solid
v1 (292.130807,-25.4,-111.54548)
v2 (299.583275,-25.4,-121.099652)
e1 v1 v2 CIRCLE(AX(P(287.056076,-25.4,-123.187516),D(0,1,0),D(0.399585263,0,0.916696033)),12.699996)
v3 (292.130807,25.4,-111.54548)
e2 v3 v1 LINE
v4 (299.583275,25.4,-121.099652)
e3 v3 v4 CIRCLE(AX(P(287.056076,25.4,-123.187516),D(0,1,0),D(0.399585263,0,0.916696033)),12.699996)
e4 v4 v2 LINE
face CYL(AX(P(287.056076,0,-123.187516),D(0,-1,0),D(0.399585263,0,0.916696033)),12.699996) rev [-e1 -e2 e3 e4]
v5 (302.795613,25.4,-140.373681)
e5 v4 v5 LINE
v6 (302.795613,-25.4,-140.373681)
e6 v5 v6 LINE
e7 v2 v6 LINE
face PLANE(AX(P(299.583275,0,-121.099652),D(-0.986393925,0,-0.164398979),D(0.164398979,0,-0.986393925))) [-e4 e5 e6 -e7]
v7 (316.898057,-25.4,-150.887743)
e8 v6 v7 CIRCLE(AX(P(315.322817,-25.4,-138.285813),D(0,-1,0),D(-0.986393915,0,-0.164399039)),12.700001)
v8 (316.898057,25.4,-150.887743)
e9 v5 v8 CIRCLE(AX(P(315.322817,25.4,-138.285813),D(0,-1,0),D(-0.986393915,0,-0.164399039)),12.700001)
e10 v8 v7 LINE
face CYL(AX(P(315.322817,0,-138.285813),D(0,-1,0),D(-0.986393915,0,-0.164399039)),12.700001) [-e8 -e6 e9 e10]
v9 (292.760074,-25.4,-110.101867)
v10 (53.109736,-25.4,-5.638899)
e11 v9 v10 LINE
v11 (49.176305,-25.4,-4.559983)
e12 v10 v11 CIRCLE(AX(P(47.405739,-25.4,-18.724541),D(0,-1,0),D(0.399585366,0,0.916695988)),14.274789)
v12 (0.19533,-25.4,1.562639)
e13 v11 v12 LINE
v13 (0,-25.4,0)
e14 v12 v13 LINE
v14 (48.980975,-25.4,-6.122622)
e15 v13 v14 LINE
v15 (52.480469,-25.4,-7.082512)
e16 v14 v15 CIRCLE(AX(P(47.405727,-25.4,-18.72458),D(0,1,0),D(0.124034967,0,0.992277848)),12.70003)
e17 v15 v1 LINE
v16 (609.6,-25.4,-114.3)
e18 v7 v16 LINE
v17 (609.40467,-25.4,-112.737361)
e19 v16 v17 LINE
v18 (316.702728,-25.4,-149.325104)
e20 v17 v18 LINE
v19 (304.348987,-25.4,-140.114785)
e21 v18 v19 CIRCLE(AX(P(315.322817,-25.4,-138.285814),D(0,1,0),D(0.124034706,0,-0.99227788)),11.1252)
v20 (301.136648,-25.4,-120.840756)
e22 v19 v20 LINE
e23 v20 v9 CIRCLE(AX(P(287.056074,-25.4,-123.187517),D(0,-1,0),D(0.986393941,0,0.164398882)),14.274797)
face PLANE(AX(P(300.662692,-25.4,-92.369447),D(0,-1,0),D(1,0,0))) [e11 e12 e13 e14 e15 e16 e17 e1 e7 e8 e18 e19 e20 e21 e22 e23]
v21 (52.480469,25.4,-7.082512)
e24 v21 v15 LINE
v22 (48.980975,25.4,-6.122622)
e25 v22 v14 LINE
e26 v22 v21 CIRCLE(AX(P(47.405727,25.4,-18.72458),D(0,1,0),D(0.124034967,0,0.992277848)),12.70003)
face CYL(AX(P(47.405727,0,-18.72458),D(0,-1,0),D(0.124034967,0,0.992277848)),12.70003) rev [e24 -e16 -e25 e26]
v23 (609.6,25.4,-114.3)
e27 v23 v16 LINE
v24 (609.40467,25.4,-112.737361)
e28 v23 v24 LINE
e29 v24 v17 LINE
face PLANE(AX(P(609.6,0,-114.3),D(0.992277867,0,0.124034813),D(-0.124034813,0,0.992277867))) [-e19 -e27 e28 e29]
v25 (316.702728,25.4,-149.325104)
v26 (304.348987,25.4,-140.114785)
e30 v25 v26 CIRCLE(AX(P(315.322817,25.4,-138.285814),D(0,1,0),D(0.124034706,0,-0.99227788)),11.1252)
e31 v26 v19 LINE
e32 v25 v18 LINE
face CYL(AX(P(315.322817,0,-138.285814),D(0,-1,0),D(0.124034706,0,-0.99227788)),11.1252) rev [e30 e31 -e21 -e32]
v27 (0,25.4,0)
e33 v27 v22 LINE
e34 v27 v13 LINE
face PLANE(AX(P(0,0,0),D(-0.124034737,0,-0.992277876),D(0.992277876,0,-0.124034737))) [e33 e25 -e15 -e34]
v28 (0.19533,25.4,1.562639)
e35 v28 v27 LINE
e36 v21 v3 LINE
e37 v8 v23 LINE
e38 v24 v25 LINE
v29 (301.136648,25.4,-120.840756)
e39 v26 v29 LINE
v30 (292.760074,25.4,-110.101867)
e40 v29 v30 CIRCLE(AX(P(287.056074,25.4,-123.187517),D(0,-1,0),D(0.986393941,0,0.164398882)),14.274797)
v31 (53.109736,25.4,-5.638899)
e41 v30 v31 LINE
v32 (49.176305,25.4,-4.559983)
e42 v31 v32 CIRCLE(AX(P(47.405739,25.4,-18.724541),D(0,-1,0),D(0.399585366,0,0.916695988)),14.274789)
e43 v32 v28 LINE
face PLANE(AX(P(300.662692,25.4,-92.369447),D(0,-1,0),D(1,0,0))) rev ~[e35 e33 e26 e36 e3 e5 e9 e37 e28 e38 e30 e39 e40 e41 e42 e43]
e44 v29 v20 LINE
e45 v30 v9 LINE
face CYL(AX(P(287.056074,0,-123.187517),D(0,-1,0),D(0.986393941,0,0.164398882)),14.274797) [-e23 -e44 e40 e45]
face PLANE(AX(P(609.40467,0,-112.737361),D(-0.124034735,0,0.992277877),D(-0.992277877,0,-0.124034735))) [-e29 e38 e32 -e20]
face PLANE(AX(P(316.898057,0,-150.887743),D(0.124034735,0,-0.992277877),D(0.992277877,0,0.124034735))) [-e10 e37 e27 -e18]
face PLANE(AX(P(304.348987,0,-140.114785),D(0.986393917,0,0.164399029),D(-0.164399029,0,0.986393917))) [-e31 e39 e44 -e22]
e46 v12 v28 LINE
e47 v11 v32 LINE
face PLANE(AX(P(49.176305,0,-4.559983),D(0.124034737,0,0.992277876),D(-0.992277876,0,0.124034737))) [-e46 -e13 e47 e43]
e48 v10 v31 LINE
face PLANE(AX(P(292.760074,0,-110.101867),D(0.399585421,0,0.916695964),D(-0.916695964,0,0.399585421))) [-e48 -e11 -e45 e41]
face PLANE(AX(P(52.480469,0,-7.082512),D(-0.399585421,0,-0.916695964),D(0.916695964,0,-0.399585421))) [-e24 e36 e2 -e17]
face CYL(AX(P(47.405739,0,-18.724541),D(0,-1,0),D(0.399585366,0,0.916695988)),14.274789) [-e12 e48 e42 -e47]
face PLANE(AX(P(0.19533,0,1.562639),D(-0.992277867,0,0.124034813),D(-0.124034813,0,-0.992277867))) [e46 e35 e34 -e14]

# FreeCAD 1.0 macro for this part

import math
import FreeCAD as App
import Part
import Sketcher

V = App.Vector
Q = App.Units.Quantity

doc = App.newDocument("Part")
body = doc.addObject("PartDesign::Body", "Body")

sketch1 = doc.addObject("Sketcher::SketchObject", "Sketch")
body.addObject(sketch1)
sketch1.AttachmentSupport = (doc.XZ_Plane, [""])
sketch1.MapMode = "FlatFace"
sketch1.addGeometry(Part.LineSegment(V(0.19533, 1.562639, 0), V(0, 0, 0)), False)
sketch1.addGeometry(Part.LineSegment(V(0, 0, 0), V(48.980975, -6.122622, 0)), False)
sketch1.addGeometry(Part.ArcOfCircle(Part.Circle(V(47.405727, -18.72458, 0), V(0, 0, 1), 12.70003), math.radians(66.447761), math.radians(82.87497)), False)
sketch1.addGeometry(Part.LineSegment(V(52.480469, -7.082512, 0), V(292.130807, -111.54548, 0)), False)
sketch1.addGeometry(Part.ArcOfCircle(Part.Circle(V(287.056076, -123.187516, 0), V(0, 0, 1), 12.699996), math.radians(9.46231), math.radians(66.447746)), False)
sketch1.addGeometry(Part.LineSegment(V(299.583275, -121.099652, 0), V(302.795613, -140.373681, 0)), False)
sketch1.addGeometry(Part.ArcOfCircle(Part.Circle(V(315.322817, -138.285813, 0), V(0, 0, 1), 12.700001), math.radians(-170.537675), math.radians(-82.874987)), False)
sketch1.addGeometry(Part.LineSegment(V(316.898057, -150.887743, 0), V(609.6, -114.3, 0)), False)
sketch1.addGeometry(Part.LineSegment(V(609.6, -114.3, 0), V(609.40467, -112.737361, 0)), False)
sketch1.addGeometry(Part.LineSegment(V(609.40467, -112.737361, 0), V(316.702728, -149.325104, 0)), False)
sketch1.addGeometry(Part.ArcOfCircle(Part.Circle(V(315.322817, -138.285814, 0), V(0, 0, 1), 11.1252), math.radians(-170.53768), math.radians(-82.874985)), False)
sketch1.addGeometry(Part.LineSegment(V(304.348987, -140.114785, 0), V(301.136648, -120.840756, 0)), False)
sketch1.addGeometry(Part.ArcOfCircle(Part.Circle(V(287.056074, -123.187517, 0), V(0, 0, 1), 14.274797), math.radians(9.462316), math.radians(66.447742)), False)
sketch1.addGeometry(Part.LineSegment(V(292.760074, -110.101867, 0), V(53.109736, -5.638899, 0)), False)
sketch1.addGeometry(Part.ArcOfCircle(Part.Circle(V(47.405739, -18.724541, 0), V(0, 0, 1), 14.274789), math.radians(66.44774), math.radians(82.874999)), False)
sketch1.addGeometry(Part.LineSegment(V(49.176305, -4.559983, 0), V(0.19533, 1.562639, 0)), False)
sketch1.addConstraint(Sketcher.Constraint("Coincident", 0, 2, 1, 1))
sketch1.addConstraint(Sketcher.Constraint("Coincident", 1, 2, 2, 2))
sketch1.addConstraint(Sketcher.Constraint("Coincident", 2, 1, 3, 1))
sketch1.addConstraint(Sketcher.Constraint("Coincident", 3, 2, 4, 2))
sketch1.addConstraint(Sketcher.Constraint("Coincident", 4, 1, 5, 1))
sketch1.addConstraint(Sketcher.Constraint("Coincident", 5, 2, 6, 1))
sketch1.addConstraint(Sketcher.Constraint("Coincident", 6, 2, 7, 1))
sketch1.addConstraint(Sketcher.Constraint("Coincident", 7, 2, 8, 1))
sketch1.addConstraint(Sketcher.Constraint("Coincident", 8, 2, 9, 1))
sketch1.addConstraint(Sketcher.Constraint("Coincident", 9, 2, 10, 2))
sketch1.addConstraint(Sketcher.Constraint("Coincident", 10, 1, 11, 1))
sketch1.addConstraint(Sketcher.Constraint("Coincident", 11, 2, 12, 1))
sketch1.addConstraint(Sketcher.Constraint("Coincident", 12, 2, 13, 1))
sketch1.addConstraint(Sketcher.Constraint("Coincident", 13, 2, 14, 1))
sketch1.addConstraint(Sketcher.Constraint("Coincident", 14, 2, 15, 1))
sketch1.addConstraint(Sketcher.Constraint("Coincident", 15, 2, 0, 1))
sketch1.addConstraint(Sketcher.Constraint("Coincident", 0, 2, -1, 1))
sketch1.addConstraint(Sketcher.Constraint("Coincident", 10, 3, 6, 3))
sketch1.addConstraint(Sketcher.Constraint("Coincident", 12, 3, 4, 3))
sketch1.addConstraint(Sketcher.Constraint("Radius", 4, Q("0.4999998 in")))
sketch1.addConstraint(Sketcher.Constraint("Radius", 6, Q("0.5 in")))
sketch1.addConstraint(Sketcher.Constraint("DistanceX", -1, 1, 7, 2, Q("24 in")))
sketch1.addConstraint(Sketcher.Constraint("Radius", 10, Q("0.438 in")))
sketch1.addConstraint(Sketcher.Constraint("Radius", 12, Q("0.5619999 in")))
sketch1.addConstraint(Sketcher.Constraint("DistanceY", 7, 2, -1, 1, Q("4.5 in")))
sketch1.addConstraint(Sketcher.Constraint("Distance", 0, Q("0.062 in")))
sketch1.addConstraint(Sketcher.Constraint("Distance", 8, Q("0.062 in")))
sketch1.addConstraint(Sketcher.Constraint("Radius", 2, Q("12.70003 mm")))
sketch1.addConstraint(Sketcher.Constraint("Radius", 14, Q("14.274789 mm")))
sketch1.addConstraint(Sketcher.Constraint("DistanceY", 13, 2, -1, 1, Q("5.638899 mm")))
sketch1.addConstraint(Sketcher.Constraint("DistanceY", 10, 3, 4, 3, Q("15.098298 mm")))
sketch1.addConstraint(Sketcher.Constraint("DistanceX", 1, 2, 12, 3, Q("238.075099 mm")))
sketch1.addConstraint(Sketcher.Constraint("DistanceX", 4, 3, 4, 1, Q("12.527199 mm")))
sketch1.addConstraint(Sketcher.Constraint("DistanceX", 12, 2, 4, 1, Q("6.823201 mm")))
sketch1.addConstraint(Sketcher.Constraint("Distance", 5, Q("19.53989 mm")))
sketch1.addConstraint(Sketcher.Constraint("Distance", 11, Q("19.53989 mm")))
sketch1.addConstraint(Sketcher.Constraint("DistanceY", 2, 3, -1, 1, Q("18.72458 mm")))
sketch1.addConstraint(Sketcher.Constraint("DistanceX", -1, 1, 14, 3, Q("47.405739 mm")))
sketch1.addConstraint(Sketcher.Constraint("DistanceY", 14, 3, -1, 1, Q("18.724541 mm")))
sketch1.addConstraint(Sketcher.Constraint("DistanceY", 1, 2, -1, 1, Q("6.122622 mm")))
sketch1.addConstraint(Sketcher.Constraint("DistanceX", -1, 1, 2, 1, Q("52.480469 mm")))
sketch1.addConstraint(Sketcher.Constraint("DistanceY", 2, 1, -1, 1, Q("7.082512 mm")))
sketch1.addConstraint(Sketcher.Constraint("DistanceY", 3, 2, -1, 1, Q("111.54548 mm")))
sketch1.addConstraint(Sketcher.Constraint("DistanceY", 5, 2, -1, 1, Q("140.373681 mm")))
sketch1.addConstraint(Sketcher.Constraint("DistanceX", -1, 1, 8, 2, Q("609.40467 mm")))
sketch1.addConstraint(Sketcher.Constraint("DistanceX", -1, 1, 9, 2, Q("316.702728 mm")))
sketch1.addConstraint(Sketcher.Constraint("DistanceX", -1, 1, 11, 2, Q("301.136648 mm")))
sketch1.addConstraint(Sketcher.Constraint("DistanceX", -1, 1, 15, 2, Q("0.19533 mm")))
sketch1.addConstraint(Sketcher.Constraint("DistanceX", 4, 3, 6, 3, Q("28.266741 mm")))
sketch1.addConstraint(Sketcher.Constraint("DistanceX", 10, 3, 6, 2, Q("1.57524 mm")))
sketch1.addConstraint(Sketcher.Constraint("DistanceX", 1, 2, 14, 2, Q("0.19533 mm")))
pad1 = doc.addObject("PartDesign::Pad", "Pad")
body.addObject(pad1)
pad1.Profile = sketch1
pad1.Type = "TwoLengths"
pad1.Length = Q("1 in")
pad1.Length2 = Q("1 in")

doc.recompute()
